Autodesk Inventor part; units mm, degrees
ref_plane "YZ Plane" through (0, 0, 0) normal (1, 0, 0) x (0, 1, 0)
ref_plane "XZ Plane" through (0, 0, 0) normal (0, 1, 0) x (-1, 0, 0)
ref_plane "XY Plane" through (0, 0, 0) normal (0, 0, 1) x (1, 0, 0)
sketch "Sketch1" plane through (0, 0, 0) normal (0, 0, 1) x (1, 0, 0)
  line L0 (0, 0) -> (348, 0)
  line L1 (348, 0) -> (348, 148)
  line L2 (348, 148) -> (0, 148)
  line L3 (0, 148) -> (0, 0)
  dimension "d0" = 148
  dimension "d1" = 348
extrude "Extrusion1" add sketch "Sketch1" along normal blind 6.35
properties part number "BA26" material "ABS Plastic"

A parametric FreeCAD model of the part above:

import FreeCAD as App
import Part
import Sketcher

V = App.Vector


def add_polygon(sketch, points):
    """Adds a closed chain of lines whose ends are joined by coincident constraints."""
    first, n = sketch.GeometryCount, len(points)
    for a, b in zip(points, points[1:] + points[:1]):
        sketch.addGeometry(Part.LineSegment(App.Vector(*a, 0), App.Vector(*b, 0)), False)
    for i in range(n):
        sketch.addConstraint(Sketcher.Constraint("Coincident", first + i, 2, first + (i + 1) % n, 1))

doc = App.newDocument("Part")
body = doc.addObject("PartDesign::Body", "Body")

# Sketch on XY plane
sketch1 = body.newObject("Sketcher::SketchObject", "Sketch")
sketch1.AttachmentSupport = (doc.getObject("XY_Plane"), [""])
sketch1.MapMode = "FlatFace"
add_polygon(sketch1, [(0, 148), (0, 0), (348, 0), (348, 148)])  # lines 0-3
sketch1.addConstraint([
    Sketcher.Constraint("Vertical", 0),
    Sketcher.Constraint("Horizontal", 1),
    Sketcher.Constraint("Vertical", 2),
    Sketcher.Constraint("Horizontal", 3),
    Sketcher.Constraint("Coincident", 0, 2, -1, 1),
    Sketcher.Constraint("DistanceX", 1, 1, 1, 2, 348.0),
    Sketcher.Constraint("DistanceY", 0, 2, 0, 1, 148.0),
])
pad1 = body.newObject("PartDesign::Pad", "Pad")
pad1.Profile = sketch1
pad1.Length = 6.35

doc.recompute()
